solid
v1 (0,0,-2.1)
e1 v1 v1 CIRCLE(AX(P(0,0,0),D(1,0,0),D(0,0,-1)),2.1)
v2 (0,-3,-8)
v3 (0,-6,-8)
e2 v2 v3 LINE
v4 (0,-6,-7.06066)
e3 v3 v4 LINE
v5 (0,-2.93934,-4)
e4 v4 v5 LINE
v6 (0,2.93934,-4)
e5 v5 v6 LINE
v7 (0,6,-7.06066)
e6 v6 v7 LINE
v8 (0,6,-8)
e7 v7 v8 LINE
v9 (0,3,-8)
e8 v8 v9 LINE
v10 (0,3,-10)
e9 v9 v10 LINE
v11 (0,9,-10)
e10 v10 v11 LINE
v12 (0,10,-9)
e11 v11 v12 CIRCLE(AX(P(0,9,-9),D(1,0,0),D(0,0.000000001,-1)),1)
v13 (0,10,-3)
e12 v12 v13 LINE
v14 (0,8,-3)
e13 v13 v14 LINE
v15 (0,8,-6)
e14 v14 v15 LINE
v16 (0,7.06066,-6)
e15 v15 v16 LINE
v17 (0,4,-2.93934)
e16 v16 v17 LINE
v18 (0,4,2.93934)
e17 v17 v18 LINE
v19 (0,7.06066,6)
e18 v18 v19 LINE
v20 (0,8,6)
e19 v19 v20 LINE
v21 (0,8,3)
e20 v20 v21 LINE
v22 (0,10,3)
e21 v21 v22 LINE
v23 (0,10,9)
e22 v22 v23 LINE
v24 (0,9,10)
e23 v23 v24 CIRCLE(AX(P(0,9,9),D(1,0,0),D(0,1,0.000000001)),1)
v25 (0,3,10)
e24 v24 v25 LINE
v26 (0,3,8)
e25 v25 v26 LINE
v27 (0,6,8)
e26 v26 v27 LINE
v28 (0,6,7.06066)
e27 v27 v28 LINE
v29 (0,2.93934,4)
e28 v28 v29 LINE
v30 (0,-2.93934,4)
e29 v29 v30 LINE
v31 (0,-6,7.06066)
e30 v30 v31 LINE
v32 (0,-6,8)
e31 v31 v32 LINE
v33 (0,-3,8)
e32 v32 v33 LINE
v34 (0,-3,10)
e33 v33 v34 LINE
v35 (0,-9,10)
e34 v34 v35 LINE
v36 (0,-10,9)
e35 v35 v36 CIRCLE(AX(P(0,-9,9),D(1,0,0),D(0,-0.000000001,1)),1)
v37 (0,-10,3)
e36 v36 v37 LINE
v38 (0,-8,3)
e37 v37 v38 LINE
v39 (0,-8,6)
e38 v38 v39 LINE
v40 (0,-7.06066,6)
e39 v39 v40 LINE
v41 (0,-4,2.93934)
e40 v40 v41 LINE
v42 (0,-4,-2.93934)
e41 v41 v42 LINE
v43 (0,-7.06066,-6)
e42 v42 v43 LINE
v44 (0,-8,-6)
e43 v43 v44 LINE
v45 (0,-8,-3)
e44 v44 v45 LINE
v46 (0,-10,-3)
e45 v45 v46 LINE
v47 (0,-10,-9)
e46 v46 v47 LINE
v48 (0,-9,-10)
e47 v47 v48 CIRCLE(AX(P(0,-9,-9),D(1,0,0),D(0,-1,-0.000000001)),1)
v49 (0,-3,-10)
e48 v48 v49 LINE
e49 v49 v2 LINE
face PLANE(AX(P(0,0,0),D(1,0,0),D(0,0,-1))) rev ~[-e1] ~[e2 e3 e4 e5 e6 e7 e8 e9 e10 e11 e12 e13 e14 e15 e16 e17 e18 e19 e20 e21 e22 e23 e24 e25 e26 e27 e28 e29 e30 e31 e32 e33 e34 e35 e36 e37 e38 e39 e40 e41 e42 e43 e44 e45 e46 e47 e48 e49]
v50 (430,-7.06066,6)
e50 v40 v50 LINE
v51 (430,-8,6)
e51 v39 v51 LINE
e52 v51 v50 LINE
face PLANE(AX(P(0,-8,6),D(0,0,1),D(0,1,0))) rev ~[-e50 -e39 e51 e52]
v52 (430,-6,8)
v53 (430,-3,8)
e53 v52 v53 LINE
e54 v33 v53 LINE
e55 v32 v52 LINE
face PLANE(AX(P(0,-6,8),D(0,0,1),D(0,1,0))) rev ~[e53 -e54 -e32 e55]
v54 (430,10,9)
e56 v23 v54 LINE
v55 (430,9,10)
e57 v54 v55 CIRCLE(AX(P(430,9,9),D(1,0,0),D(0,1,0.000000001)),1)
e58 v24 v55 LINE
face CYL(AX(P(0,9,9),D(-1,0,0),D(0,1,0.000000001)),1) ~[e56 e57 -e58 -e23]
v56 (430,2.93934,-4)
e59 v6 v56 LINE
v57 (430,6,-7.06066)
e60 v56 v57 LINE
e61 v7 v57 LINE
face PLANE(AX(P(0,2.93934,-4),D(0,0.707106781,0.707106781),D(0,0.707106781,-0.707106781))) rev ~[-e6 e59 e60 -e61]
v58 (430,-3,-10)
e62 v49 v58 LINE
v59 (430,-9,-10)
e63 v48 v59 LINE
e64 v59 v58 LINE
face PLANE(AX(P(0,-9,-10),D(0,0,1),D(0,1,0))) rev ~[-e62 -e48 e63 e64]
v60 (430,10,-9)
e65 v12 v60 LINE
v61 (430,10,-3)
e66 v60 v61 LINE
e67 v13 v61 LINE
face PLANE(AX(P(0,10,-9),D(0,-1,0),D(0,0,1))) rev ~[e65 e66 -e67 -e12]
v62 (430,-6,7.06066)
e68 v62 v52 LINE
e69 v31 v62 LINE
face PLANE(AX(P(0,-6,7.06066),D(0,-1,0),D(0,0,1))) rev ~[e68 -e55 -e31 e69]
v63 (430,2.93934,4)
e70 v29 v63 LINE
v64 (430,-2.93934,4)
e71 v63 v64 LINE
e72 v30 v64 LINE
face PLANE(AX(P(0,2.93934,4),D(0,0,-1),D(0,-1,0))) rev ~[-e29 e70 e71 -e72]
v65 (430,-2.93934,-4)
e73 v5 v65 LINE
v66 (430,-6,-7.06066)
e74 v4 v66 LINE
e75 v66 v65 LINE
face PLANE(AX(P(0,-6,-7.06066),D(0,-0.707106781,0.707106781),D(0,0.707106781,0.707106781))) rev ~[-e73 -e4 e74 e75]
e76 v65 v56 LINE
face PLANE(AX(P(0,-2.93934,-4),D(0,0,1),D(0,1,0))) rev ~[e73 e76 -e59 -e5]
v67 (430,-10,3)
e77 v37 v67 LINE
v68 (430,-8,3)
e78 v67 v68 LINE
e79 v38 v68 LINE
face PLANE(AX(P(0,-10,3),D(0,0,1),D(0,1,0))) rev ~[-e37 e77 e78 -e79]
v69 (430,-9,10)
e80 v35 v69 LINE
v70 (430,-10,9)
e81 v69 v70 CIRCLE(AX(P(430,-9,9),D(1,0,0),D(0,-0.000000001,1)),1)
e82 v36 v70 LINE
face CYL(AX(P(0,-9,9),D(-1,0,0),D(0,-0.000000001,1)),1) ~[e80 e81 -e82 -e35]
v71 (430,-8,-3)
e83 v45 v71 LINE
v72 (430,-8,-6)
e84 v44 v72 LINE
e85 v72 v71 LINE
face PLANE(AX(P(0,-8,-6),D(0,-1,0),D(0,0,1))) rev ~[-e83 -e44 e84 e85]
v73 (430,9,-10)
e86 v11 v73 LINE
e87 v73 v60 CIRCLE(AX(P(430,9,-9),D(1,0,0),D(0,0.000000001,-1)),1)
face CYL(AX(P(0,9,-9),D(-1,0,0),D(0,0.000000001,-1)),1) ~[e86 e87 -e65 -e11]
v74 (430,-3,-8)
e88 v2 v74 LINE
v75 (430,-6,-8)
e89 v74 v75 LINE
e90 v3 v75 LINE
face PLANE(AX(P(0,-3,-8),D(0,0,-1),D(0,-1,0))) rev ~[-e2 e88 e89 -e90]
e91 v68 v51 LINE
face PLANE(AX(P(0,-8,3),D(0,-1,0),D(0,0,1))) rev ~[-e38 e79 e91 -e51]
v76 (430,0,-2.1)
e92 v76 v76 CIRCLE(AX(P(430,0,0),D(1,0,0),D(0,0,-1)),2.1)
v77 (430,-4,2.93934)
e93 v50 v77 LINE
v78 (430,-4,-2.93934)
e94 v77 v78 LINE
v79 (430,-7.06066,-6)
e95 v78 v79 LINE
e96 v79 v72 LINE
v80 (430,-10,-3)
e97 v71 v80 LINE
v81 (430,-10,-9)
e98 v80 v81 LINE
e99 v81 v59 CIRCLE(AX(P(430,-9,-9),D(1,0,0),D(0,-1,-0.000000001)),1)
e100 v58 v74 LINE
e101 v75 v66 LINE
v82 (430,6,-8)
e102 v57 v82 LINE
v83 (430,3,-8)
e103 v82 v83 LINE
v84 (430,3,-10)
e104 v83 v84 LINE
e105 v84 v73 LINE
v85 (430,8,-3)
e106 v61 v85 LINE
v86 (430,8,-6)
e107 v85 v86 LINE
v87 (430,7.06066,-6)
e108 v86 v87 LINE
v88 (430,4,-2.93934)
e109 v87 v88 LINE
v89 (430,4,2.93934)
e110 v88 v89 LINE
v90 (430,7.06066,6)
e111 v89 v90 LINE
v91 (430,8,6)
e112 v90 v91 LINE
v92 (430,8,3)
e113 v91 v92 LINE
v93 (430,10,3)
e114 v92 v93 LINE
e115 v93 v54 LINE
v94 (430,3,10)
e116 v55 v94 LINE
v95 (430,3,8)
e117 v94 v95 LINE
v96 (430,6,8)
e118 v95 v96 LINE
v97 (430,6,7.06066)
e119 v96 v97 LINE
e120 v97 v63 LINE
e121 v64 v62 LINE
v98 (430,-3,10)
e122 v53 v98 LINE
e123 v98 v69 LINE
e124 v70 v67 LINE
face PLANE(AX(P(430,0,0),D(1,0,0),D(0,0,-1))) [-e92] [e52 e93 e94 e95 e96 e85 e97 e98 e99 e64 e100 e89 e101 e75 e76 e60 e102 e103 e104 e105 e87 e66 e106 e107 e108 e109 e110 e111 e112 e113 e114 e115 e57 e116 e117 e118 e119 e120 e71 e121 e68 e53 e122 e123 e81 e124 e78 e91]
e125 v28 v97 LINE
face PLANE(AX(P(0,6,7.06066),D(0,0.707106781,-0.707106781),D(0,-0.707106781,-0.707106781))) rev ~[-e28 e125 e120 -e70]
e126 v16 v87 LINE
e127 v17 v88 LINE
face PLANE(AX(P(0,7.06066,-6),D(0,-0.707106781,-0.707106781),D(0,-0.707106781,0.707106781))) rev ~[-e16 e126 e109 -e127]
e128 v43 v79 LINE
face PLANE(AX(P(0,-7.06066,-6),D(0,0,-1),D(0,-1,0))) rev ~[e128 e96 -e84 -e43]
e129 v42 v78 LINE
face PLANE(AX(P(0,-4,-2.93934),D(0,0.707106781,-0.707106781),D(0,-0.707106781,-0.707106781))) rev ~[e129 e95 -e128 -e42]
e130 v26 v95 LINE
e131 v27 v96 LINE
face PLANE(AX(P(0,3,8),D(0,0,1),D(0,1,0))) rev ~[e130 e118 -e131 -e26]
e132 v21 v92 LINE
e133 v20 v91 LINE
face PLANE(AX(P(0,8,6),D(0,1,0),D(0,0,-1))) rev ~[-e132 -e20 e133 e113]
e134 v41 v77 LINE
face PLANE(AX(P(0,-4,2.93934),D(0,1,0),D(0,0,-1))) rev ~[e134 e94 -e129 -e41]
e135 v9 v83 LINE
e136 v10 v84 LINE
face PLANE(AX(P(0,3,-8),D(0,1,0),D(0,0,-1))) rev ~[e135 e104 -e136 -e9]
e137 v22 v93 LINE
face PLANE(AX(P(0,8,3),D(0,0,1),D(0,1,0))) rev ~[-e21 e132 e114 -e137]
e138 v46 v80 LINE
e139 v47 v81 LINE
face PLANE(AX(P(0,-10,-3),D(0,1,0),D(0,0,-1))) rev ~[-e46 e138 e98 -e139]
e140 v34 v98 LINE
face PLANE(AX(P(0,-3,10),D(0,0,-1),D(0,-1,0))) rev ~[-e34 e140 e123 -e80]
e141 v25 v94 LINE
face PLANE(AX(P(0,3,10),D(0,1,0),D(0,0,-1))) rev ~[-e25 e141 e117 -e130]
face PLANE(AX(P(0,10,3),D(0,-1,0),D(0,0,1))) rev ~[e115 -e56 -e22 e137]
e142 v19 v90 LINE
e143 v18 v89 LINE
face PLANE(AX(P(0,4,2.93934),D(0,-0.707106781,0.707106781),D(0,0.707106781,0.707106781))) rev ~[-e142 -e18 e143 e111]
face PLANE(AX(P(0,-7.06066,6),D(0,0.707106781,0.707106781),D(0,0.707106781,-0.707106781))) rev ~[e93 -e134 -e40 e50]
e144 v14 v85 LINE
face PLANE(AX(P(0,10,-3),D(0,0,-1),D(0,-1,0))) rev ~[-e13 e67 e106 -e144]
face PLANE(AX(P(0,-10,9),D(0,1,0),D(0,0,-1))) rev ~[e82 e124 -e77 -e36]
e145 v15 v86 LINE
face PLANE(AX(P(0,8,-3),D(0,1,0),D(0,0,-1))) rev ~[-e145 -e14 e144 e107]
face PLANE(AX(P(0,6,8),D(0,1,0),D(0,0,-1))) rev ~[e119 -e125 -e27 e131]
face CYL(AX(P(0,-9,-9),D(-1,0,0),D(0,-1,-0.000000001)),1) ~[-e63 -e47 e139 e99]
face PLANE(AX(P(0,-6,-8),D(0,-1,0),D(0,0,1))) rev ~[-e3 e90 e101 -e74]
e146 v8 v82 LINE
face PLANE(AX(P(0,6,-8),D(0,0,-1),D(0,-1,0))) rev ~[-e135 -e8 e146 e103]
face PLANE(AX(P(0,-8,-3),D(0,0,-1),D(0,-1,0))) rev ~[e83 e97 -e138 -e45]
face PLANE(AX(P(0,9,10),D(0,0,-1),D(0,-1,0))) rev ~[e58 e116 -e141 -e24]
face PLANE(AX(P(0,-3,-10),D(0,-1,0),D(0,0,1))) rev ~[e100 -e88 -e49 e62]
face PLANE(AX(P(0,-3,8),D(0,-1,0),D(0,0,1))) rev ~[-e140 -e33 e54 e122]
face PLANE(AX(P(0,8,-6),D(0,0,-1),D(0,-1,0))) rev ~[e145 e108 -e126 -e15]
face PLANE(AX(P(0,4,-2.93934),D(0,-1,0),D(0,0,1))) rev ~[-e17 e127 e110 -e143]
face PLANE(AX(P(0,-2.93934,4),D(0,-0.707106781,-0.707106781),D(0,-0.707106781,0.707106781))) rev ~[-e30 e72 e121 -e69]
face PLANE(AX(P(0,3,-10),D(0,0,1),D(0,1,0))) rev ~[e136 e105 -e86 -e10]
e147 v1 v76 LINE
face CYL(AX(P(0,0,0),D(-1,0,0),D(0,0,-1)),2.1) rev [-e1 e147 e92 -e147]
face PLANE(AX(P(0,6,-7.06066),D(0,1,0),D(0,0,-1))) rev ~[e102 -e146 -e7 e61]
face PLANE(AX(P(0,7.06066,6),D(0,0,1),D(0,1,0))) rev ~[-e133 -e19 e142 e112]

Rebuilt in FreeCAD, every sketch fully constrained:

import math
import FreeCAD as App
import Part
import Sketcher

V = App.Vector

doc = App.newDocument("Part")
params = doc.addObject("Spreadsheet::Sheet", "Params")
for row, (alias, value) in enumerate([
    ("sketch1_radius", "1 mm"),
    ("sketch1_diameter", "4.2 mm"),
    ("sketch1_width", "6 mm"),
    ("sketch1_width2", "3 mm"),
    ("sketch1_width3", "2 mm"),
    ("pad1_length", "430 mm"),
], start=1):
    params.set(f"A{row}", alias)
    params.set(f"B{row}", "=" + value)
    params.setAlias(f"B{row}", alias)

body = doc.addObject("PartDesign::Body", "Body")

sketch1 = doc.addObject("Sketcher::SketchObject", "Sketch")
body.addObject(sketch1)
sketch1.AttachmentSupport = (doc.YZ_Plane, [""])
sketch1.MapMode = "FlatFace"
sketch1.addGeometry([
    Part.LineSegment(V(9, 10, 0), V(3, 10, 0)),
    Part.LineSegment(V(3, 10, 0), V(3, 8, 0)),
    Part.LineSegment(V(3, 8, 0), V(6, 8, 0)),
    Part.LineSegment(V(6, 8, 0), V(6, 7.1, 0)),
    Part.LineSegment(V(6, 7.1, 0), V(2.9, 4, 0)),
    Part.LineSegment(V(2.9, 4, 0), V(-2.9, 4, 0)),
    Part.LineSegment(V(-2.9, 4, 0), V(-6, 7.1, 0)),
    Part.LineSegment(V(-6, 7.1, 0), V(-6, 8, 0)),
    Part.LineSegment(V(-6, 8, 0), V(-3, 8, 0)),
    Part.LineSegment(V(-3, 8, 0), V(-3, 10, 0)),
    Part.LineSegment(V(-3, 10, 0), V(-9, 10, 0)),
    Part.ArcOfCircle(Part.Circle(V(-9, 9, 0), V(0, 0, 1), 1), math.radians(90), math.radians(180)),
    Part.LineSegment(V(-10, 9, 0), V(-10, 3, 0)),
    Part.LineSegment(V(-10, 3, 0), V(-8, 3, 0)),
    Part.LineSegment(V(-8, 3, 0), V(-8, 6, 0)),
    Part.LineSegment(V(-8, 6, 0), V(-7.1, 6, 0)),
    Part.LineSegment(V(-7.1, 6, 0), V(-4, 2.9, 0)),
    Part.LineSegment(V(-4, 2.9, 0), V(-4, -2.9, 0)),
    Part.LineSegment(V(-4, -2.9, 0), V(-7.1, -6, 0)),
    Part.LineSegment(V(-7.1, -6, 0), V(-8, -6, 0)),
    Part.LineSegment(V(-8, -6, 0), V(-8, -3, 0)),
    Part.LineSegment(V(-8, -3, 0), V(-10, -3, 0)),
    Part.LineSegment(V(-10, -3, 0), V(-10, -9, 0)),
    Part.ArcOfCircle(Part.Circle(V(-9, -9, 0), V(0, 0, 1), 1), math.radians(-180), math.radians(-90)),
    Part.LineSegment(V(-9, -10, 0), V(-3, -10, 0)),
    Part.LineSegment(V(-3, -10, 0), V(-3, -8, 0)),
    Part.LineSegment(V(-3, -8, 0), V(-6, -8, 0)),
    Part.LineSegment(V(-6, -8, 0), V(-6, -7.1, 0)),
    Part.LineSegment(V(-6, -7.1, 0), V(-2.9, -4, 0)),
    Part.LineSegment(V(-2.9, -4, 0), V(2.9, -4, 0)),
    Part.LineSegment(V(2.9, -4, 0), V(6, -7.1, 0)),
    Part.LineSegment(V(6, -7.1, 0), V(6, -8, 0)),
    Part.LineSegment(V(6, -8, 0), V(3, -8, 0)),
    Part.LineSegment(V(3, -8, 0), V(3, -10, 0)),
    Part.LineSegment(V(3, -10, 0), V(9, -10, 0)),
    Part.ArcOfCircle(Part.Circle(V(9, -9, 0), V(0, 0, 1), 1), math.radians(-90), math.radians(0)),
    Part.LineSegment(V(10, -9, 0), V(10, -3, 0)),
    Part.LineSegment(V(10, -3, 0), V(8, -3, 0)),
    Part.LineSegment(V(8, -3, 0), V(8, -6, 0)),
    Part.LineSegment(V(8, -6, 0), V(7.1, -6, 0)),
    Part.LineSegment(V(7.1, -6, 0), V(4, -2.9, 0)),
    Part.LineSegment(V(4, -2.9, 0), V(4, 2.9, 0)),
    Part.LineSegment(V(4, 2.9, 0), V(7.1, 6, 0)),
    Part.LineSegment(V(7.1, 6, 0), V(8, 6, 0)),
    Part.LineSegment(V(8, 6, 0), V(8, 3, 0)),
    Part.LineSegment(V(8, 3, 0), V(10, 3, 0)),
    Part.LineSegment(V(10, 3, 0), V(10, 9, 0)),
    Part.ArcOfCircle(Part.Circle(V(9, 9, 0), V(0, 0, 1), 1), math.radians(0), math.radians(90)),
    Part.Circle(V(0, 0, 0), V(0, 0, 1), 2.1),
], False)
sketch1.addConstraint([
    Sketcher.Constraint("Coincident", 0, 2, 1, 1),
    Sketcher.Constraint("Coincident", 1, 2, 2, 1),
    Sketcher.Constraint("Coincident", 2, 2, 3, 1),
    Sketcher.Constraint("Coincident", 3, 2, 4, 1),
    Sketcher.Constraint("Coincident", 4, 2, 5, 1),
    Sketcher.Constraint("Coincident", 5, 2, 6, 1),
    Sketcher.Constraint("Coincident", 6, 2, 7, 1),
    Sketcher.Constraint("Coincident", 7, 2, 8, 1),
    Sketcher.Constraint("Coincident", 8, 2, 9, 1),
    Sketcher.Constraint("Coincident", 9, 2, 10, 1),
    Sketcher.Constraint("Tangent", 10, 2, 11, 1),
    Sketcher.Constraint("Tangent", 11, 2, 12, 1),
    Sketcher.Constraint("Coincident", 12, 2, 13, 1),
    Sketcher.Constraint("Coincident", 13, 2, 14, 1),
    Sketcher.Constraint("Coincident", 14, 2, 15, 1),
    Sketcher.Constraint("Coincident", 15, 2, 16, 1),
    Sketcher.Constraint("Coincident", 16, 2, 17, 1),
    Sketcher.Constraint("Coincident", 17, 2, 18, 1),
    Sketcher.Constraint("Coincident", 18, 2, 19, 1),
    Sketcher.Constraint("Coincident", 19, 2, 20, 1),
    Sketcher.Constraint("Coincident", 20, 2, 21, 1),
    Sketcher.Constraint("Coincident", 21, 2, 22, 1),
    Sketcher.Constraint("Tangent", 22, 2, 23, 1),
    Sketcher.Constraint("Tangent", 23, 2, 24, 1),
    Sketcher.Constraint("Coincident", 24, 2, 25, 1),
    Sketcher.Constraint("Coincident", 25, 2, 26, 1),
    Sketcher.Constraint("Coincident", 26, 2, 27, 1),
    Sketcher.Constraint("Coincident", 27, 2, 28, 1),
    Sketcher.Constraint("Coincident", 28, 2, 29, 1),
    Sketcher.Constraint("Coincident", 29, 2, 30, 1),
    Sketcher.Constraint("Coincident", 30, 2, 31, 1),
    Sketcher.Constraint("Coincident", 31, 2, 32, 1),
    Sketcher.Constraint("Coincident", 32, 2, 33, 1),
    Sketcher.Constraint("Coincident", 33, 2, 34, 1),
    Sketcher.Constraint("Tangent", 34, 2, 35, 1),
    Sketcher.Constraint("Tangent", 35, 2, 36, 1),
    Sketcher.Constraint("Coincident", 36, 2, 37, 1),
    Sketcher.Constraint("Coincident", 37, 2, 38, 1),
    Sketcher.Constraint("Coincident", 38, 2, 39, 1),
    Sketcher.Constraint("Coincident", 39, 2, 40, 1),
    Sketcher.Constraint("Coincident", 40, 2, 41, 1),
    Sketcher.Constraint("Coincident", 41, 2, 42, 1),
    Sketcher.Constraint("Coincident", 42, 2, 43, 1),
    Sketcher.Constraint("Coincident", 43, 2, 44, 1),
    Sketcher.Constraint("Coincident", 44, 2, 45, 1),
    Sketcher.Constraint("Coincident", 45, 2, 46, 1),
    Sketcher.Constraint("Tangent", 46, 2, 47, 1),
    Sketcher.Constraint("Tangent", 47, 2, 0, 1),
    Sketcher.Constraint("Horizontal", 0),
    Sketcher.Constraint("Vertical", 1),
    Sketcher.Constraint("Horizontal", 2),
    Sketcher.Constraint("Vertical", 3),
    Sketcher.Constraint("Horizontal", 5),
    Sketcher.Constraint("Vertical", 7),
    Sketcher.Constraint("Horizontal", 8),
    Sketcher.Constraint("Vertical", 9),
    Sketcher.Constraint("Horizontal", 10),
    Sketcher.Constraint("Vertical", 12),
    Sketcher.Constraint("Horizontal", 13),
    Sketcher.Constraint("Vertical", 14),
    Sketcher.Constraint("Horizontal", 15),
    Sketcher.Constraint("Vertical", 17),
    Sketcher.Constraint("Horizontal", 19),
    Sketcher.Constraint("Vertical", 20),
    Sketcher.Constraint("Horizontal", 21),
    Sketcher.Constraint("Vertical", 22),
    Sketcher.Constraint("Horizontal", 24),
    Sketcher.Constraint("Vertical", 25),
    Sketcher.Constraint("Horizontal", 26),
    Sketcher.Constraint("Vertical", 27),
    Sketcher.Constraint("Horizontal", 29),
    Sketcher.Constraint("Vertical", 31),
    Sketcher.Constraint("Horizontal", 32),
    Sketcher.Constraint("Vertical", 33),
    Sketcher.Constraint("Horizontal", 34),
    Sketcher.Constraint("Vertical", 36),
    Sketcher.Constraint("Horizontal", 37),
    Sketcher.Constraint("Vertical", 38),
    Sketcher.Constraint("Horizontal", 39),
    Sketcher.Constraint("Vertical", 41),
    Sketcher.Constraint("Horizontal", 43),
    Sketcher.Constraint("Vertical", 44),
    Sketcher.Constraint("Horizontal", 45),
    Sketcher.Constraint("Vertical", 46),
    Sketcher.Constraint("Coincident", 48, 3, -1, 1),
    Sketcher.Constraint("Equal", 11, 23),
    Sketcher.Constraint("Equal", 23, 35),
    Sketcher.Constraint("Equal", 35, 47),
    Sketcher.Constraint("Symmetric", 11, 3, 35, 3, -1, 1),
    Sketcher.Constraint("Symmetric", 23, 3, 47, 3, -1, 1),
    Sketcher.Constraint("Symmetric", 1, 2, 25, 2, -1, 1),
    Sketcher.Constraint("Symmetric", 3, 2, 27, 2, -1, 1),
    Sketcher.Constraint("Symmetric", 4, 2, 28, 2, -1, 1),
    Sketcher.Constraint("Symmetric", 6, 2, 30, 2, -1, 1),
    Sketcher.Constraint("Symmetric", 8, 2, 32, 2, -1, 1),
    Sketcher.Constraint("Symmetric", 13, 2, 37, 2, -1, 1),
    Sketcher.Constraint("Symmetric", 15, 2, 39, 2, -1, 1),
    Sketcher.Constraint("Symmetric", 16, 2, 40, 2, -1, 1),
    Sketcher.Constraint("Symmetric", 18, 2, 42, 2, -1, 1),
    Sketcher.Constraint("Symmetric", 20, 2, 44, 2, -1, 1),
    Sketcher.Constraint("Symmetric", 23, 3, 35, 3, -2),
    Sketcher.Constraint("Symmetric", 3, 2, 6, 2, -2),
    Sketcher.Constraint("Symmetric", 1, 2, 8, 2, -2),
    Sketcher.Constraint("Symmetric", 20, 2, 37, 2, -2),
    Sketcher.Constraint("Symmetric", 18, 2, 39, 2, -2),
    Sketcher.Constraint("Perpendicular", 4, 6),
    Sketcher.Constraint("Parallel", 6, 16),
    Sketcher.Constraint("Perpendicular", 16, 18),
    Sketcher.Constraint("Perpendicular", 28, 30),
    Sketcher.Constraint("Perpendicular", 40, 42),
    Sketcher.Constraint("Horizontal", 17, 2, 40, 2),
    Sketcher.Constraint("Equal", 45, 1),
    Sketcher.Constraint("Equal", 43, 3),
    Sketcher.Constraint("Equal", 34, 12),
    Sketcher.Constraint("Equal", 32, 14),
    Sketcher.Constraint("Equal", 29, 17),
    Sketcher.Constraint("Equal", 6, 16),
    Sketcher.Constraint("Radius", 11, 1.0),
    Sketcher.Constraint("Diameter", 48, 4.2),
    Sketcher.Constraint("DistanceX", 0, 2, 0, 1, 6.0),
    Sketcher.Constraint("DistanceX", 2, 1, 2, 2, 3.0),
    Sketcher.Constraint("DistanceX", 13, 1, 13, 2, 2.0),
    Sketcher.Constraint("DistanceX", 11, 3, -1, 1, 9.0),
    Sketcher.Constraint("DistanceY", -1, 1, 4, 2, 4.0),
    Sketcher.Constraint("DistanceX", 5, 2, 5, 1, 5.87868),
])
sketch1.setExpression("Constraints[117]", "Params.sketch1_radius")
sketch1.setExpression("Constraints[118]", "Params.sketch1_diameter")
sketch1.setExpression("Constraints[119]", "Params.sketch1_width")
sketch1.setExpression("Constraints[120]", "Params.sketch1_width2")
sketch1.setExpression("Constraints[121]", "Params.sketch1_width3")
pad1 = doc.addObject("PartDesign::Pad", "Pad")
body.addObject(pad1)
pad1.Profile = sketch1
pad1.setExpression("Length", "Params.pad1_length")

doc.recompute()
